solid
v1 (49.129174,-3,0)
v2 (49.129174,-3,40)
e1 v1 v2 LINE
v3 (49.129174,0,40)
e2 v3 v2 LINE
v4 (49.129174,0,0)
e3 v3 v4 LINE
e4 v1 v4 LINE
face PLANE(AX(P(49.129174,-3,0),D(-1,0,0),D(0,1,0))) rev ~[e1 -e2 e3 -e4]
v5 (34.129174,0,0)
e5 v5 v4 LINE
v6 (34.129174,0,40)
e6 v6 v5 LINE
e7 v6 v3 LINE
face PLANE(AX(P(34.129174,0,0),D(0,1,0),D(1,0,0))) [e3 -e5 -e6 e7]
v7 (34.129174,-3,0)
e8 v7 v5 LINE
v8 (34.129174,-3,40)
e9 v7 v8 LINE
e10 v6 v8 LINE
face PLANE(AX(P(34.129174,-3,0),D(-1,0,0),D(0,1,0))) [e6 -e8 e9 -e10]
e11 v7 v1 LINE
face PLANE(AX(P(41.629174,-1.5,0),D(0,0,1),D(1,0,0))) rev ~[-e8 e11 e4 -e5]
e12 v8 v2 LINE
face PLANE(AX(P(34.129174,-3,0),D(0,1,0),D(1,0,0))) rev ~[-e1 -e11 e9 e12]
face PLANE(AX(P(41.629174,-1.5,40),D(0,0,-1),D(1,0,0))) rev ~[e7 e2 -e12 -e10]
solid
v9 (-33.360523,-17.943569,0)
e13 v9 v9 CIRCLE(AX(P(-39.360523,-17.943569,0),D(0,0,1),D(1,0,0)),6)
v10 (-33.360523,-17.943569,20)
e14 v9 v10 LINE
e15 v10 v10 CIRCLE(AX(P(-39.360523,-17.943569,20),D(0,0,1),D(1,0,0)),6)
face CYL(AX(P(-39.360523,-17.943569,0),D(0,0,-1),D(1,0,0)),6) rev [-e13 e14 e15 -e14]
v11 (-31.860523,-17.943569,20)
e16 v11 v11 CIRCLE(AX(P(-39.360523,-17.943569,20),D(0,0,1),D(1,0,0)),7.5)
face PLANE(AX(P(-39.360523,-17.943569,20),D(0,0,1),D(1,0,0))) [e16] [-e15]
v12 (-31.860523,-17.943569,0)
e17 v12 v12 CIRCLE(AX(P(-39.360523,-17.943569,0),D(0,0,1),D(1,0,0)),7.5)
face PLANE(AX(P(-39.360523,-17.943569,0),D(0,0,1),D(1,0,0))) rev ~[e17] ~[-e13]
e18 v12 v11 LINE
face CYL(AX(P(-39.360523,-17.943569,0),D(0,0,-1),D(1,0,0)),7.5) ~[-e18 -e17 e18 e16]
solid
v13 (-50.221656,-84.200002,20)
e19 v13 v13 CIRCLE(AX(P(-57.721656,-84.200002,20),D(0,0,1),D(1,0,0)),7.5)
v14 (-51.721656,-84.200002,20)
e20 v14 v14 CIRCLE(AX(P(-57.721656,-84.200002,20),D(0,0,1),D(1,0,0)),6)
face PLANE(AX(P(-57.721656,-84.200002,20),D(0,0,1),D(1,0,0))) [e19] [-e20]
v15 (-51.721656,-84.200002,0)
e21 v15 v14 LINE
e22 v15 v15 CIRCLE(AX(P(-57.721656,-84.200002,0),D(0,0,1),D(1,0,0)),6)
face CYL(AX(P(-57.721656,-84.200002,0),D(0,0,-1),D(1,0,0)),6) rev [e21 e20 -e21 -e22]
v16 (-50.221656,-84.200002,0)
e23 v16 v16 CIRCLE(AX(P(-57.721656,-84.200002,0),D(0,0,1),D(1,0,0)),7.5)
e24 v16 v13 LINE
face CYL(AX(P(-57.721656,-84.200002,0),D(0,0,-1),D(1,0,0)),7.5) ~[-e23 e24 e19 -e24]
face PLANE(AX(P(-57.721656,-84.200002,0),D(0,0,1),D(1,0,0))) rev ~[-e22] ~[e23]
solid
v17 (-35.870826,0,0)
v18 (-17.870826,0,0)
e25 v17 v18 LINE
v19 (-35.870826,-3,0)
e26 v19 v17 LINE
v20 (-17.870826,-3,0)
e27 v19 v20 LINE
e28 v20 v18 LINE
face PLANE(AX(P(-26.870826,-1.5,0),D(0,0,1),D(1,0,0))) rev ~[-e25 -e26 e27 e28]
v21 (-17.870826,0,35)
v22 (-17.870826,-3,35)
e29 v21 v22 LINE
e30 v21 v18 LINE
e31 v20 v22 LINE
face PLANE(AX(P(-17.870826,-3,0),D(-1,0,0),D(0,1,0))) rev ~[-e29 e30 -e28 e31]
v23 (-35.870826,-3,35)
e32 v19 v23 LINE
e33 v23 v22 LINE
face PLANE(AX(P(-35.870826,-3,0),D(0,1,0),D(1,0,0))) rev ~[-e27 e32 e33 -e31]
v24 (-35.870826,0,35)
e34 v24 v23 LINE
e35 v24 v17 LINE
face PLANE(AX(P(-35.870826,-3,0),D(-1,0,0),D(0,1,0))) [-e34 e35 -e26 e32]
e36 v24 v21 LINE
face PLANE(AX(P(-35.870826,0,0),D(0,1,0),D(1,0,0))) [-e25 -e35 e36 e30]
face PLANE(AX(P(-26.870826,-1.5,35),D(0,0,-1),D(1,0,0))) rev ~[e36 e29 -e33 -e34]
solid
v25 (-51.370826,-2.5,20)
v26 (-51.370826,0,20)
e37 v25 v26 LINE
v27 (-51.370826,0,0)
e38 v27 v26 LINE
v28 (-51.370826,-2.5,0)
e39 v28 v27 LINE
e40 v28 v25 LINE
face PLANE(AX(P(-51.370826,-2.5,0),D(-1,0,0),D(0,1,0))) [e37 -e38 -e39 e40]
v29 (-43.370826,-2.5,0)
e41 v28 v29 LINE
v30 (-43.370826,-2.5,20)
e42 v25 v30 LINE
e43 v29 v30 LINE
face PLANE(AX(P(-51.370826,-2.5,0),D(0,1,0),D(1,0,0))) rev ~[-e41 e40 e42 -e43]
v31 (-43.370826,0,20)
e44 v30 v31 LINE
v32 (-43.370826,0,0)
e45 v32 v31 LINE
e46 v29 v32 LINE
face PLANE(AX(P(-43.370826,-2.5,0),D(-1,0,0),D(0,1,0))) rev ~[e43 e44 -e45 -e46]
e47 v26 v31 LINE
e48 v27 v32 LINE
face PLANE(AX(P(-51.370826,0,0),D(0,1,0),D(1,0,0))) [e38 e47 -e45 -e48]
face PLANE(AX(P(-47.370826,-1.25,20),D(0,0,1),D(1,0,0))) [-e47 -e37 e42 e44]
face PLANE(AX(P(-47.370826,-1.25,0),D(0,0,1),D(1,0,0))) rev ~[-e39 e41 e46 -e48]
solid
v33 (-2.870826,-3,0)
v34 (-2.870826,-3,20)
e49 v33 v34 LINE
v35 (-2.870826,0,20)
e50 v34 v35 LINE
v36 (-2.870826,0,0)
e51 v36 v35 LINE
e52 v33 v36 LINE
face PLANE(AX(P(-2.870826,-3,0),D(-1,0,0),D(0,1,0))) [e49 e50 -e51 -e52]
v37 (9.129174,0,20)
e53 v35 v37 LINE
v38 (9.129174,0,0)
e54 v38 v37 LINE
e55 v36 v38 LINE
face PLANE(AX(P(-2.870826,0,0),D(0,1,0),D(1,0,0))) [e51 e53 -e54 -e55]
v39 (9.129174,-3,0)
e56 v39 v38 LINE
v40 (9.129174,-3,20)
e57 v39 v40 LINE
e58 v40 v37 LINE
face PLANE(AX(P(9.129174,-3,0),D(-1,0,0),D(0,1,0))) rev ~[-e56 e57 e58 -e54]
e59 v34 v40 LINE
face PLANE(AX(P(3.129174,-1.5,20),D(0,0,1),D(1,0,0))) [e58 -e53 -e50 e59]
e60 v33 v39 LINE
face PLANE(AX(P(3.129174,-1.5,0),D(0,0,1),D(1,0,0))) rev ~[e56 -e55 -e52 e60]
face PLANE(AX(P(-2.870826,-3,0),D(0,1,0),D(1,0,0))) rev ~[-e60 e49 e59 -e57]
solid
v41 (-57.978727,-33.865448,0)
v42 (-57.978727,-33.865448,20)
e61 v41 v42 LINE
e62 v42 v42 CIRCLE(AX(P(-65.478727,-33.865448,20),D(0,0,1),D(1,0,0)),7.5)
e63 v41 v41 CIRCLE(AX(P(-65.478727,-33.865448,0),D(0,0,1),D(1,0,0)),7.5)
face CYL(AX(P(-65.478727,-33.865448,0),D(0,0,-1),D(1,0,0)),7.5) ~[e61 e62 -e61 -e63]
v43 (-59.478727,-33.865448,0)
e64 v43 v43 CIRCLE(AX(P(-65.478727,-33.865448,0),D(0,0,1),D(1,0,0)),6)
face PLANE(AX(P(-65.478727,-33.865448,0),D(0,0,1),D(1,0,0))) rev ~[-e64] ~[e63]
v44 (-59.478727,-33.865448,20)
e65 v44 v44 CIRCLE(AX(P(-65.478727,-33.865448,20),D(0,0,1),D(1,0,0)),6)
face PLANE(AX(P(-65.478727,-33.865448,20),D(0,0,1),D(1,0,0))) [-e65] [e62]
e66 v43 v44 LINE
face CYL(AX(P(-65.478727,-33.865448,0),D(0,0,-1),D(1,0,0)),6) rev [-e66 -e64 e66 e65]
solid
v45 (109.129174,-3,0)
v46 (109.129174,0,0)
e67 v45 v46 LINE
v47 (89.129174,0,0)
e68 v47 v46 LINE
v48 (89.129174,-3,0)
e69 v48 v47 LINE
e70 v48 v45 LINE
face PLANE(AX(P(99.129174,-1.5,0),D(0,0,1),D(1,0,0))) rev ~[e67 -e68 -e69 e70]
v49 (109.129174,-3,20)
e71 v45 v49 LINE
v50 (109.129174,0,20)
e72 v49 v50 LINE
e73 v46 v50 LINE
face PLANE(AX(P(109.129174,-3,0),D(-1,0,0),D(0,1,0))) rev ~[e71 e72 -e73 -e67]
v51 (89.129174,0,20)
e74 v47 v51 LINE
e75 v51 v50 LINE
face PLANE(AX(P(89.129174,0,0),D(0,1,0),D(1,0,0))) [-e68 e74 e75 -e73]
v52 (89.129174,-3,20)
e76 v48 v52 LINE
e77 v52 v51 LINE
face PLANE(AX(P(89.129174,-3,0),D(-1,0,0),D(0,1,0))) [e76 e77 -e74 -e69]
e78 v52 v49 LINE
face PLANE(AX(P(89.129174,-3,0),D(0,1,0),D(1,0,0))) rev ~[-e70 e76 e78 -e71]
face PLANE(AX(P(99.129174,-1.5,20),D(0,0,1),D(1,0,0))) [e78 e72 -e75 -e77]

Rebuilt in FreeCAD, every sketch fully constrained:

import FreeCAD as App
import Part
import Sketcher
Q = App.Units.Quantity

doc = App.newDocument("Part")
params = doc.addObject("Spreadsheet::Sheet", "Params")
for row, (alias, value) in enumerate([
    ("sketch1_diameter", "15 mm"),
    ("sketch1_diameter2", "12 mm"),
    ("sketch1_width", "8 mm"),
    ("sketch1_width2", "18 mm"),
    ("sketch1_width3", "12 mm"),
    ("pad1_length", "20 mm"),
    ("sketch2_width", "18 mm"),
    ("sketch2_height", "3 mm"),
    ("pad2_length", "35 mm"),
    ("sketch3_width", "15 mm"),
    ("sketch3_height", "3 mm"),
    ("pad3_length", "40 mm"),
], start=1):
    params.set(f"A{row}", alias)
    params.set(f"B{row}", "=" + value)
    params.setAlias(f"B{row}", alias)

body = doc.addObject("PartDesign::Body", "Body")
body.AllowCompound = True

# Sketch on XY plane
sketch1 = body.newObject("Sketcher::SketchObject", "Sketch")
sketch1.AttachmentSupport = (doc.getObject("XY_Plane"), [""])
sketch1.MapMode = "FlatFace"
sketch1.addGeometry(Part.LineSegment(App.Vector(-51.370826, 0, 0), App.Vector(-51.370826, -2.5, 0)), False)
sketch1.addGeometry(Part.LineSegment(App.Vector(-51.370826, -2.5, 0), App.Vector(-43.370826, -2.5, 0)), False)
sketch1.addGeometry(Part.LineSegment(App.Vector(-43.370826, -2.5, 0), App.Vector(-43.370826, 0, 0)), False)
sketch1.addGeometry(Part.LineSegment(App.Vector(-43.370826, 0, 0), App.Vector(-51.370826, 0, 0)), False)
sketch1.addGeometry(Part.LineSegment(App.Vector(-35.870826, 0, 0), App.Vector(-35.870826, -3, 0)), False)
sketch1.addGeometry(Part.LineSegment(App.Vector(-35.870826, -3, 0), App.Vector(-17.870826, -3, 0)), False)
sketch1.addGeometry(Part.LineSegment(App.Vector(-17.870826, -3, 0), App.Vector(-17.870826, 0, 0)), False)
sketch1.addGeometry(Part.LineSegment(App.Vector(-17.870826, 0, 0), App.Vector(-35.870826, 0, 0)), False)
sketch1.addGeometry(Part.LineSegment(App.Vector(-2.870826, 0, 0), App.Vector(-2.870826, -3, 0)), False)
sketch1.addGeometry(Part.LineSegment(App.Vector(-2.870826, -3, 0), App.Vector(9.129174, -3, 0)), False)
sketch1.addGeometry(Part.LineSegment(App.Vector(9.129174, -3, 0), App.Vector(9.129174, 0, 0)), False)
sketch1.addGeometry(Part.LineSegment(App.Vector(9.129174, 0, 0), App.Vector(-2.870826, 0, 0)), False)
sketch1.addGeometry(Part.LineSegment(App.Vector(34.129174, 0, 0), App.Vector(34.129174, -3, 0)), False)
sketch1.addGeometry(Part.LineSegment(App.Vector(34.129174, -3, 0), App.Vector(49.129174, -3, 0)), False)
sketch1.addGeometry(Part.LineSegment(App.Vector(49.129174, -3, 0), App.Vector(49.129174, 0, 0)), False)
sketch1.addGeometry(Part.LineSegment(App.Vector(49.129174, 0, 0), App.Vector(34.129174, 0, 0)), False)
sketch1.addGeometry(Part.LineSegment(App.Vector(89.129174, 0, 0), App.Vector(89.129174, -3, 0)), False)
sketch1.addGeometry(Part.LineSegment(App.Vector(89.129174, -3, 0), App.Vector(109.129174, -3, 0)), False)
sketch1.addGeometry(Part.LineSegment(App.Vector(109.129174, -3, 0), App.Vector(109.129174, 0, 0)), False)
sketch1.addGeometry(Part.LineSegment(App.Vector(109.129174, 0, 0), App.Vector(89.129174, 0, 0)), False)
sketch1.addGeometry(Part.Circle(App.Vector(-39.360523, -17.943569, 0), App.Vector(0, 0, 1), 7.5), False)
sketch1.addGeometry(Part.Circle(App.Vector(-39.360523, -17.943569, 0), App.Vector(0, 0, 1), 6), False)
sketch1.addGeometry(Part.Circle(App.Vector(-57.721656, -84.200002, 0), App.Vector(0, 0, 1), 7.5), False)
sketch1.addGeometry(Part.Circle(App.Vector(-57.721656, -84.200002, 0), App.Vector(0, 0, 1), 6), False)
sketch1.addGeometry(Part.Circle(App.Vector(-65.478727, -33.865448, 0), App.Vector(0, 0, 1), 7.5), False)
sketch1.addGeometry(Part.Circle(App.Vector(-65.478727, -33.865448, 0), App.Vector(0, 0, 1), 6), False)
sketch1.addConstraint(Sketcher.Constraint("Coincident", 0, 2, 1, 1))
sketch1.addConstraint(Sketcher.Constraint("Coincident", 1, 2, 2, 1))
sketch1.addConstraint(Sketcher.Constraint("Coincident", 2, 2, 3, 1))
sketch1.addConstraint(Sketcher.Constraint("Coincident", 3, 2, 0, 1))
sketch1.addConstraint(Sketcher.Constraint("Coincident", 4, 2, 5, 1))
sketch1.addConstraint(Sketcher.Constraint("Coincident", 5, 2, 6, 1))
sketch1.addConstraint(Sketcher.Constraint("Coincident", 6, 2, 7, 1))
sketch1.addConstraint(Sketcher.Constraint("Coincident", 7, 2, 4, 1))
sketch1.addConstraint(Sketcher.Constraint("Coincident", 8, 2, 9, 1))
sketch1.addConstraint(Sketcher.Constraint("Coincident", 9, 2, 10, 1))
sketch1.addConstraint(Sketcher.Constraint("Coincident", 10, 2, 11, 1))
sketch1.addConstraint(Sketcher.Constraint("Coincident", 11, 2, 8, 1))
sketch1.addConstraint(Sketcher.Constraint("Coincident", 12, 2, 13, 1))
sketch1.addConstraint(Sketcher.Constraint("Coincident", 13, 2, 14, 1))
sketch1.addConstraint(Sketcher.Constraint("Coincident", 14, 2, 15, 1))
sketch1.addConstraint(Sketcher.Constraint("Coincident", 15, 2, 12, 1))
sketch1.addConstraint(Sketcher.Constraint("Coincident", 16, 2, 17, 1))
sketch1.addConstraint(Sketcher.Constraint("Coincident", 17, 2, 18, 1))
sketch1.addConstraint(Sketcher.Constraint("Coincident", 18, 2, 19, 1))
sketch1.addConstraint(Sketcher.Constraint("Coincident", 19, 2, 16, 1))
sketch1.addConstraint(Sketcher.Constraint("Vertical", 0))
sketch1.addConstraint(Sketcher.Constraint("Horizontal", 1))
sketch1.addConstraint(Sketcher.Constraint("Vertical", 2))
sketch1.addConstraint(Sketcher.Constraint("Horizontal", 3))
sketch1.addConstraint(Sketcher.Constraint("Vertical", 4))
sketch1.addConstraint(Sketcher.Constraint("Horizontal", 5))
sketch1.addConstraint(Sketcher.Constraint("Vertical", 6))
sketch1.addConstraint(Sketcher.Constraint("Horizontal", 7))
sketch1.addConstraint(Sketcher.Constraint("Vertical", 8))
sketch1.addConstraint(Sketcher.Constraint("Horizontal", 9))
sketch1.addConstraint(Sketcher.Constraint("Vertical", 10))
sketch1.addConstraint(Sketcher.Constraint("Horizontal", 11))
sketch1.addConstraint(Sketcher.Constraint("Vertical", 12))
sketch1.addConstraint(Sketcher.Constraint("Horizontal", 13))
sketch1.addConstraint(Sketcher.Constraint("Vertical", 14))
sketch1.addConstraint(Sketcher.Constraint("Horizontal", 15))
sketch1.addConstraint(Sketcher.Constraint("Vertical", 16))
sketch1.addConstraint(Sketcher.Constraint("Horizontal", 17))
sketch1.addConstraint(Sketcher.Constraint("Vertical", 18))
sketch1.addConstraint(Sketcher.Constraint("Horizontal", 19))
sketch1.addConstraint(Sketcher.Constraint("Coincident", 21, 3, 20, 3))
sketch1.addConstraint(Sketcher.Constraint("Coincident", 23, 3, 22, 3))
sketch1.addConstraint(Sketcher.Constraint("Coincident", 25, 3, 24, 3))
sketch1.addConstraint(Sketcher.Constraint("Equal", 20, 22))
sketch1.addConstraint(Sketcher.Constraint("Equal", 21, 23))
sketch1.addConstraint(Sketcher.Constraint("Equal", 22, 24))
sketch1.addConstraint(Sketcher.Constraint("Equal", 23, 25))
sketch1.addConstraint(Sketcher.Constraint("PointOnObject", 2, 2, -1))
sketch1.addConstraint(Sketcher.Constraint("PointOnObject", 6, 2, -1))
sketch1.addConstraint(Sketcher.Constraint("PointOnObject", 10, 2, -1))
sketch1.addConstraint(Sketcher.Constraint("PointOnObject", 14, 2, -1))
sketch1.addConstraint(Sketcher.Constraint("PointOnObject", 18, 2, -1))
sketch1.addConstraint(Sketcher.Constraint("Horizontal", 5, 2, 8, 2))
sketch1.addConstraint(Sketcher.Constraint("Horizontal", 9, 2, 12, 2))
sketch1.addConstraint(Sketcher.Constraint("Horizontal", 13, 2, 16, 2))
sketch1.addConstraint(Sketcher.Constraint("Diameter", 20, Q("15 mm")))
sketch1.addConstraint(Sketcher.Constraint("Diameter", 21, Q("12 mm")))
sketch1.addConstraint(Sketcher.Constraint("DistanceX", 1, 1, 1, 2, Q("8 mm")))
sketch1.addConstraint(Sketcher.Constraint("DistanceX", 5, 1, 5, 2, Q("18 mm")))
sketch1.addConstraint(Sketcher.Constraint("DistanceX", 9, 1, 9, 2, Q("12 mm")))
sketch1.addConstraint(Sketcher.Constraint("DistanceX", 13, 1, 13, 2, Q("15 mm")))
sketch1.addConstraint(Sketcher.Constraint("DistanceX", 17, 1, 17, 2, Q("20 mm")))
sketch1.addConstraint(Sketcher.Constraint("DistanceY", 4, 2, 4, 1, Q("3 mm")))
sketch1.addConstraint(Sketcher.Constraint("DistanceY", 0, 2, 0, 1, Q("2.5 mm")))
sketch1.addConstraint(Sketcher.Constraint("DistanceX", 5, 2, 8, 2, Q("15 mm")))
sketch1.addConstraint(Sketcher.Constraint("DistanceX", 9, 2, 12, 2, Q("25 mm")))
sketch1.addConstraint(Sketcher.Constraint("DistanceX", 13, 2, 16, 2, Q("40 mm")))
sketch1.addConstraint(Sketcher.Constraint("DistanceY", 22, 3, -1, 1, Q("84.200002 mm")))
sketch1.addConstraint(Sketcher.Constraint("DistanceX", 1, 2, 4, 2, Q("7.5 mm")))
sketch1.addConstraint(Sketcher.Constraint("DistanceX", 24, 3, 0, 2, Q("14.107901 mm")))
sketch1.addConstraint(Sketcher.Constraint("DistanceY", 20, 3, -1, 1, Q("17.943569 mm")))
sketch1.addConstraint(Sketcher.Constraint("DistanceY", 24, 3, 20, 3, Q("15.921879 mm")))
sketch1.addConstraint(Sketcher.Constraint("DistanceX", 24, 3, 22, 3, Q("7.757071 mm")))
sketch1.addConstraint(Sketcher.Constraint("DistanceX", 20, 3, -1, 1, Q("39.360523 mm")))
sketch1.addConstraint(Sketcher.Constraint("DistanceX", 22, 3, -1, 1, Q("57.721656 mm")))
sketch1.setExpression("Constraints[55]", "Params.sketch1_diameter")
sketch1.setExpression("Constraints[56]", "Params.sketch1_diameter2")
sketch1.setExpression("Constraints[57]", "Params.sketch1_width")
sketch1.setExpression("Constraints[58]", "Params.sketch1_width2")
sketch1.setExpression("Constraints[59]", "Params.sketch1_width3")
pad1 = body.newObject("PartDesign::Pad", "Pad")
pad1.Profile = sketch1
pad1.setExpression("Length", "Params.pad1_length")

# Sketch on XY plane
sketch2 = body.newObject("Sketcher::SketchObject", "Sketch001")
sketch2.AttachmentSupport = (doc.getObject("XY_Plane"), [""])
sketch2.MapMode = "FlatFace"
sketch2.addGeometry(Part.LineSegment(App.Vector(-35.870826, -3, 0), App.Vector(-35.870826, 0, 0)), False)
sketch2.addGeometry(Part.LineSegment(App.Vector(-35.870826, 0, 0), App.Vector(-17.870826, 0, 0)), False)
sketch2.addGeometry(Part.LineSegment(App.Vector(-17.870826, 0, 0), App.Vector(-17.870826, -3, 0)), False)
sketch2.addGeometry(Part.LineSegment(App.Vector(-17.870826, -3, 0), App.Vector(-35.870826, -3, 0)), False)
sketch2.addConstraint(Sketcher.Constraint("Coincident", 0, 2, 1, 1))
sketch2.addConstraint(Sketcher.Constraint("Coincident", 1, 2, 2, 1))
sketch2.addConstraint(Sketcher.Constraint("Coincident", 2, 2, 3, 1))
sketch2.addConstraint(Sketcher.Constraint("Coincident", 3, 2, 0, 1))
sketch2.addConstraint(Sketcher.Constraint("Vertical", 0))
sketch2.addConstraint(Sketcher.Constraint("Horizontal", 1))
sketch2.addConstraint(Sketcher.Constraint("Vertical", 2))
sketch2.addConstraint(Sketcher.Constraint("Horizontal", 3))
sketch2.addConstraint(Sketcher.Constraint("PointOnObject", 0, 2, -1))
sketch2.addConstraint(Sketcher.Constraint("DistanceX", 1, 1, 1, 2, Q("18 mm")))
sketch2.addConstraint(Sketcher.Constraint("DistanceY", 0, 1, 0, 2, Q("3 mm")))
sketch2.addConstraint(Sketcher.Constraint("DistanceX", 0, 2, -1, 1, Q("35.870826 mm")))
sketch2.setExpression("Constraints[9]", "Params.sketch2_width")
sketch2.setExpression("Constraints[10]", "Params.sketch2_height")
pad2 = body.newObject("PartDesign::Pad", "Pad001")
pad2.Profile = sketch2
pad2.setExpression("Length", "Params.pad2_length")

# Sketch on XY plane
sketch3 = body.newObject("Sketcher::SketchObject", "Sketch002")
sketch3.AttachmentSupport = (doc.getObject("XY_Plane"), [""])
sketch3.MapMode = "FlatFace"
sketch3.addGeometry(Part.LineSegment(App.Vector(34.129174, -3, 0), App.Vector(34.129174, 0, 0)), False)
sketch3.addGeometry(Part.LineSegment(App.Vector(34.129174, 0, 0), App.Vector(49.129174, 0, 0)), False)
sketch3.addGeometry(Part.LineSegment(App.Vector(49.129174, 0, 0), App.Vector(49.129174, -3, 0)), False)
sketch3.addGeometry(Part.LineSegment(App.Vector(49.129174, -3, 0), App.Vector(34.129174, -3, 0)), False)
sketch3.addConstraint(Sketcher.Constraint("Coincident", 0, 2, 1, 1))
sketch3.addConstraint(Sketcher.Constraint("Coincident", 1, 2, 2, 1))
sketch3.addConstraint(Sketcher.Constraint("Coincident", 2, 2, 3, 1))
sketch3.addConstraint(Sketcher.Constraint("Coincident", 3, 2, 0, 1))
sketch3.addConstraint(Sketcher.Constraint("Vertical", 0))
sketch3.addConstraint(Sketcher.Constraint("Horizontal", 1))
sketch3.addConstraint(Sketcher.Constraint("Vertical", 2))
sketch3.addConstraint(Sketcher.Constraint("Horizontal", 3))
sketch3.addConstraint(Sketcher.Constraint("PointOnObject", 0, 2, -1))
sketch3.addConstraint(Sketcher.Constraint("DistanceX", 1, 1, 1, 2, Q("15 mm")))
sketch3.addConstraint(Sketcher.Constraint("DistanceY", 0, 1, 0, 2, Q("3 mm")))
sketch3.addConstraint(Sketcher.Constraint("DistanceX", -1, 1, 0, 2, Q("34.129174 mm")))
sketch3.setExpression("Constraints[9]", "Params.sketch3_width")
sketch3.setExpression("Constraints[10]", "Params.sketch3_height")
pad3 = body.newObject("PartDesign::Pad", "Pad002")
pad3.Profile = sketch3
pad3.setExpression("Length", "Params.pad3_length")

doc.recompute()
